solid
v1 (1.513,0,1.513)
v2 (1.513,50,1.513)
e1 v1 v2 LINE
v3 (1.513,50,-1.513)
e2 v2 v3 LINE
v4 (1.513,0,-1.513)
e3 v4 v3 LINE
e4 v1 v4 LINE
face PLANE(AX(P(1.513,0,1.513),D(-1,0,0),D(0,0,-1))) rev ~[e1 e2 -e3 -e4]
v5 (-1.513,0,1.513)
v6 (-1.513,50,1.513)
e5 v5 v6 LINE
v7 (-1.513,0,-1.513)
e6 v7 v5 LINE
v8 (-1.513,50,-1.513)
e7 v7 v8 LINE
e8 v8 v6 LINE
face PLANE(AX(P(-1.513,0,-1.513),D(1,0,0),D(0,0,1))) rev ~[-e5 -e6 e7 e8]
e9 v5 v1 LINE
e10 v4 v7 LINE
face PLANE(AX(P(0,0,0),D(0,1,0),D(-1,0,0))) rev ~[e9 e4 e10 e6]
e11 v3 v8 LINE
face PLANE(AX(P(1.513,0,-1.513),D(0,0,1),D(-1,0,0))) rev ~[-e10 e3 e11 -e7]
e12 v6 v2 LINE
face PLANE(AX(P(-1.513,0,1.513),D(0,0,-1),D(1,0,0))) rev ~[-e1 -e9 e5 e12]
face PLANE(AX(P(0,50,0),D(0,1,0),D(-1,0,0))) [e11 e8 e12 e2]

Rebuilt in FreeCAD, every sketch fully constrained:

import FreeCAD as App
import Part
import Sketcher

doc = App.newDocument("Part")
body = doc.addObject("PartDesign::Body", "Body")

# Sketch on XZ plane
sketch1 = body.newObject("Sketcher::SketchObject", "Sketch")
sketch1.AttachmentSupport = (doc.getObject("XZ_Plane"), [""])
sketch1.MapMode = "FlatFace"
sketch1.addGeometry(Part.LineSegment(App.Vector(-1.5, 1.5, 0), App.Vector(1.5, 1.5, 0)), False)
sketch1.addGeometry(Part.LineSegment(App.Vector(1.5, 1.5, 0), App.Vector(1.5, -1.5, 0)), False)
sketch1.addGeometry(Part.LineSegment(App.Vector(1.5, -1.5, 0), App.Vector(-1.5, -1.5, 0)), False)
sketch1.addGeometry(Part.LineSegment(App.Vector(-1.5, -1.5, 0), App.Vector(-1.5, 1.5, 0)), False)
sketch1.addConstraint(Sketcher.Constraint("Coincident", 0, 2, 1, 1))
sketch1.addConstraint(Sketcher.Constraint("Coincident", 1, 2, 2, 1))
sketch1.addConstraint(Sketcher.Constraint("Coincident", 2, 2, 3, 1))
sketch1.addConstraint(Sketcher.Constraint("Coincident", 3, 2, 0, 1))
sketch1.addConstraint(Sketcher.Constraint("Horizontal", 0))
sketch1.addConstraint(Sketcher.Constraint("Vertical", 1))
sketch1.addConstraint(Sketcher.Constraint("Horizontal", 2))
sketch1.addConstraint(Sketcher.Constraint("Vertical", 3))
sketch1.addConstraint(Sketcher.Constraint("Symmetric", 0, 2, 2, 2, -1, 1))
sketch1.addConstraint(Sketcher.Constraint("Equal", 2, 1))
sketch1.addConstraint(Sketcher.Constraint("DistanceX", 0, 1, 0, 2, 3.026))
pad1 = body.newObject("PartDesign::Pad", "Pad")
pad1.Profile = sketch1
pad1.Length = 50
pad1.Reversed = True

doc.recompute()
